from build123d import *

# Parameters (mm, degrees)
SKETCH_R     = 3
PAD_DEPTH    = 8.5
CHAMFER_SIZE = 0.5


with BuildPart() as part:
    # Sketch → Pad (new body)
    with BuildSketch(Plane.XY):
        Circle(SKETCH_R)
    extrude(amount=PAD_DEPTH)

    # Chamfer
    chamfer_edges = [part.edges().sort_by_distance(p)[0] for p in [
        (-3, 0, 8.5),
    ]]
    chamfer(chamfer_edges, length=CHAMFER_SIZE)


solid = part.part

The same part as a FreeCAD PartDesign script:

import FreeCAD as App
import Part
import Sketcher

V = App.Vector


def edges_at(feature, points):
    """Names of the edges that pass closest to the given points."""
    edges = feature.Shape.Edges
    near = lambda p: min(range(len(edges)), key=lambda i: edges[i].distToShape(Part.Vertex(*p))[0])
    return sorted({f"Edge{near(p) + 1}" for p in points})

doc = App.newDocument("Part")
body = doc.addObject("PartDesign::Body", "Body")

# Sketch on XY plane
sketch1 = body.newObject("Sketcher::SketchObject", "Sketch")
sketch1.AttachmentSupport = (doc.getObject("XY_Plane"), [""])
sketch1.MapMode = "FlatFace"
sketch1.addGeometry(Part.Circle(V(0, 0, 0), V(0, 0, 1), 3), False)
sketch1.addConstraint([
    Sketcher.Constraint("Coincident", 0, 3, -1, 1),
    Sketcher.Constraint("Diameter", 0, 6.0),
])
pad1 = body.newObject("PartDesign::Pad", "Pad")
pad1.Profile = sketch1
pad1.Length = 8.5
doc.recompute()

chamfer = body.newObject("PartDesign::Chamfer", "Chamfer")
chamfer.Base = (pad1, edges_at(pad1, [(-3, 0, 8.5)]))
chamfer.Size = 0.5

doc.recompute()
